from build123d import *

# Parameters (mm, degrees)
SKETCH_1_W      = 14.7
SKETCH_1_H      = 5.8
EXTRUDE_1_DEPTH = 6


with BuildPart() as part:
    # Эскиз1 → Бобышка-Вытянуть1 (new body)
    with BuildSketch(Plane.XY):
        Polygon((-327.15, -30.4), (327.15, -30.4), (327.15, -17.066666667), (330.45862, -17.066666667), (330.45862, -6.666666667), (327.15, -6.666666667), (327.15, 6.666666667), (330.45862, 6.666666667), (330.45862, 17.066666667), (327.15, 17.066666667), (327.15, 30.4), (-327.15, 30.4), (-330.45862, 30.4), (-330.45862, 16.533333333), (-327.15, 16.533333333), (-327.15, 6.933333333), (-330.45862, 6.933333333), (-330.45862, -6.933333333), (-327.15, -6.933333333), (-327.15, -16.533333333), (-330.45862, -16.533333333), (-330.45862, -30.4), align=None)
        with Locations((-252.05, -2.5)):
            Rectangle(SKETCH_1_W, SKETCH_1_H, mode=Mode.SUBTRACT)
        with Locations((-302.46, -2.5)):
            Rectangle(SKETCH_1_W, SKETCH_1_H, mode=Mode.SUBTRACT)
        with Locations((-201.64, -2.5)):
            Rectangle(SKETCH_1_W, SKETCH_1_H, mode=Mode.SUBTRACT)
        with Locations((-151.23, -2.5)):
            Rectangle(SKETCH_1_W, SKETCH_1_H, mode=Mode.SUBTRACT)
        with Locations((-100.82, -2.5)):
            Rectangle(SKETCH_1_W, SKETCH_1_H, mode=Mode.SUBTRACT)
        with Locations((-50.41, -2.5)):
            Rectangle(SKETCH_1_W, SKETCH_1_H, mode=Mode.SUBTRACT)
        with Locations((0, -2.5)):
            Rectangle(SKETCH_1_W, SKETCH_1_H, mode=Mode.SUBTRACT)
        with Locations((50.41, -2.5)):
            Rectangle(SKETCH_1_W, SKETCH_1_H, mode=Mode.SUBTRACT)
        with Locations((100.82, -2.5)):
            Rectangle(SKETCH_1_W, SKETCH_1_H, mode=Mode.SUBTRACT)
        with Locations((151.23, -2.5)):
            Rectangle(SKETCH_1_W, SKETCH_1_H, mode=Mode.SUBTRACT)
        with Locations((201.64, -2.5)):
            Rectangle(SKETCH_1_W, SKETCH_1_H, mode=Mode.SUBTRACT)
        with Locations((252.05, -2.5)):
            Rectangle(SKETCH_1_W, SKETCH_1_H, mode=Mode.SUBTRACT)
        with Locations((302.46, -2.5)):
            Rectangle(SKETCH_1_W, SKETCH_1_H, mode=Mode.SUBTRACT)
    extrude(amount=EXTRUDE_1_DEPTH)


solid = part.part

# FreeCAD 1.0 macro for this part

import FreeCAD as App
import Part
import Sketcher

V = App.Vector

doc = App.newDocument("Part")
body = doc.addObject("PartDesign::Body", "Body")

sketch1 = body.newObject("Sketcher::SketchObject", "Sketch")
sketch1.AttachmentSupport = (doc.getObject("XY_Plane"), [""])
sketch1.MapMode = "FlatFace"
sketch1.addGeometry([
    Part.LineSegment(V(327.1, -30.4, 0), V(327.1, -17.1, 0)),
    Part.LineSegment(V(327.1, -17.1, 0), V(330.5, -17.1, 0)),
    Part.LineSegment(V(330.5, -17.1, 0), V(330.5, -6.7, 0)),
    Part.LineSegment(V(330.5, -6.7, 0), V(327.1, -6.7, 0)),
    Part.LineSegment(V(327.1, -6.7, 0), V(327.1, 6.7, 0)),
    Part.LineSegment(V(327.1, 6.7, 0), V(330.5, 6.7, 0)),
    Part.LineSegment(V(330.5, 6.7, 0), V(330.5, 17.1, 0)),
    Part.LineSegment(V(330.5, 17.1, 0), V(327.1, 17.1, 0)),
    Part.LineSegment(V(327.1, 17.1, 0), V(327.1, 30.4, 0)),
    Part.LineSegment(V(327.1, 30.4, 0), V(-330.5, 30.4, 0)),
    Part.LineSegment(V(-330.5, 30.4, 0), V(-330.5, 16.5, 0)),
    Part.LineSegment(V(-330.5, 16.5, 0), V(-327.1, 16.5, 0)),
    Part.LineSegment(V(-327.1, 16.5, 0), V(-327.1, 6.9, 0)),
    Part.LineSegment(V(-327.1, 6.9, 0), V(-330.5, 6.9, 0)),
    Part.LineSegment(V(-330.5, 6.9, 0), V(-330.5, -6.9, 0)),
    Part.LineSegment(V(-330.5, -6.9, 0), V(-327.1, -6.9, 0)),
    Part.LineSegment(V(-327.1, -6.9, 0), V(-327.1, -16.5, 0)),
    Part.LineSegment(V(-327.1, -16.5, 0), V(-330.5, -16.5, 0)),
    Part.LineSegment(V(-330.5, -16.5, 0), V(-330.5, -30.4, 0)),
    Part.LineSegment(V(-330.5, -30.4, 0), V(327.1, -30.4, 0)),
    Part.LineSegment(V(-295.1, -5.4, 0), V(-309.8, -5.4, 0)),
    Part.LineSegment(V(-309.8, -5.4, 0), V(-309.8, 0.4, 0)),
    Part.LineSegment(V(-309.8, 0.4, 0), V(-295.1, 0.4, 0)),
    Part.LineSegment(V(-295.1, 0.4, 0), V(-295.1, -5.4, 0)),
    Part.LineSegment(V(-244.7, -5.4, 0), V(-259.4, -5.4, 0)),
    Part.LineSegment(V(-259.4, -5.4, 0), V(-259.4, 0.4, 0)),
    Part.LineSegment(V(-259.4, 0.4, 0), V(-244.7, 0.4, 0)),
    Part.LineSegment(V(-244.7, 0.4, 0), V(-244.7, -5.4, 0)),
    Part.LineSegment(V(-194.3, -5.4, 0), V(-209, -5.4, 0)),
    Part.LineSegment(V(-209, -5.4, 0), V(-209, 0.4, 0)),
    Part.LineSegment(V(-209, 0.4, 0), V(-194.3, 0.4, 0)),
    Part.LineSegment(V(-194.3, 0.4, 0), V(-194.3, -5.4, 0)),
    Part.LineSegment(V(-143.9, -5.4, 0), V(-158.6, -5.4, 0)),
    Part.LineSegment(V(-158.6, -5.4, 0), V(-158.6, 0.4, 0)),
    Part.LineSegment(V(-158.6, 0.4, 0), V(-143.9, 0.4, 0)),
    Part.LineSegment(V(-143.9, 0.4, 0), V(-143.9, -5.4, 0)),
    Part.LineSegment(V(-93.5, -5.4, 0), V(-108.2, -5.4, 0)),
    Part.LineSegment(V(-108.2, -5.4, 0), V(-108.2, 0.4, 0)),
    Part.LineSegment(V(-108.2, 0.4, 0), V(-93.5, 0.4, 0)),
    Part.LineSegment(V(-93.5, 0.4, 0), V(-93.5, -5.4, 0)),
    Part.LineSegment(V(-43.1, -5.4, 0), V(-57.8, -5.4, 0)),
    Part.LineSegment(V(-57.8, -5.4, 0), V(-57.8, 0.4, 0)),
    Part.LineSegment(V(-57.8, 0.4, 0), V(-43.1, 0.4, 0)),
    Part.LineSegment(V(-43.1, 0.4, 0), V(-43.1, -5.4, 0)),
    Part.LineSegment(V(7.3, -5.4, 0), V(-7.3, -5.4, 0)),
    Part.LineSegment(V(-7.3, -5.4, 0), V(-7.3, 0.4, 0)),
    Part.LineSegment(V(-7.3, 0.4, 0), V(7.3, 0.4, 0)),
    Part.LineSegment(V(7.3, 0.4, 0), V(7.3, -5.4, 0)),
    Part.LineSegment(V(57.8, -5.4, 0), V(43.1, -5.4, 0)),
    Part.LineSegment(V(43.1, -5.4, 0), V(43.1, 0.4, 0)),
    Part.LineSegment(V(43.1, 0.4, 0), V(57.8, 0.4, 0)),
    Part.LineSegment(V(57.8, 0.4, 0), V(57.8, -5.4, 0)),
    Part.LineSegment(V(108.2, -5.4, 0), V(93.5, -5.4, 0)),
    Part.LineSegment(V(93.5, -5.4, 0), V(93.5, 0.4, 0)),
    Part.LineSegment(V(93.5, 0.4, 0), V(108.2, 0.4, 0)),
    Part.LineSegment(V(108.2, 0.4, 0), V(108.2, -5.4, 0)),
    Part.LineSegment(V(158.6, -5.4, 0), V(143.9, -5.4, 0)),
    Part.LineSegment(V(143.9, -5.4, 0), V(143.9, 0.4, 0)),
    Part.LineSegment(V(143.9, 0.4, 0), V(158.6, 0.4, 0)),
    Part.LineSegment(V(158.6, 0.4, 0), V(158.6, -5.4, 0)),
    Part.LineSegment(V(209, -5.4, 0), V(194.3, -5.4, 0)),
    Part.LineSegment(V(194.3, -5.4, 0), V(194.3, 0.4, 0)),
    Part.LineSegment(V(194.3, 0.4, 0), V(209, 0.4, 0)),
    Part.LineSegment(V(209, 0.4, 0), V(209, -5.4, 0)),
    Part.LineSegment(V(259.4, -5.4, 0), V(244.7, -5.4, 0)),
    Part.LineSegment(V(244.7, -5.4, 0), V(244.7, 0.4, 0)),
    Part.LineSegment(V(244.7, 0.4, 0), V(259.4, 0.4, 0)),
    Part.LineSegment(V(259.4, 0.4, 0), V(259.4, -5.4, 0)),
    Part.LineSegment(V(309.8, -5.4, 0), V(295.1, -5.4, 0)),
    Part.LineSegment(V(295.1, -5.4, 0), V(295.1, 0.4, 0)),
    Part.LineSegment(V(295.1, 0.4, 0), V(309.8, 0.4, 0)),
    Part.LineSegment(V(309.8, 0.4, 0), V(309.8, -5.4, 0)),
], False)
sketch1.addConstraint([
    Sketcher.Constraint("Coincident", 0, 2, 1, 1),
    Sketcher.Constraint("Coincident", 1, 2, 2, 1),
    Sketcher.Constraint("Coincident", 2, 2, 3, 1),
    Sketcher.Constraint("Coincident", 3, 2, 4, 1),
    Sketcher.Constraint("Coincident", 4, 2, 5, 1),
    Sketcher.Constraint("Coincident", 5, 2, 6, 1),
    Sketcher.Constraint("Coincident", 6, 2, 7, 1),
    Sketcher.Constraint("Coincident", 7, 2, 8, 1),
    Sketcher.Constraint("Coincident", 8, 2, 9, 1),
    Sketcher.Constraint("Coincident", 9, 2, 10, 1),
    Sketcher.Constraint("Coincident", 10, 2, 11, 1),
    Sketcher.Constraint("Coincident", 11, 2, 12, 1),
    Sketcher.Constraint("Coincident", 12, 2, 13, 1),
    Sketcher.Constraint("Coincident", 13, 2, 14, 1),
    Sketcher.Constraint("Coincident", 14, 2, 15, 1),
    Sketcher.Constraint("Coincident", 15, 2, 16, 1),
    Sketcher.Constraint("Coincident", 16, 2, 17, 1),
    Sketcher.Constraint("Coincident", 17, 2, 18, 1),
    Sketcher.Constraint("Coincident", 18, 2, 19, 1),
    Sketcher.Constraint("Coincident", 19, 2, 0, 1),
    Sketcher.Constraint("Coincident", 20, 2, 21, 1),
    Sketcher.Constraint("Coincident", 21, 2, 22, 1),
    Sketcher.Constraint("Coincident", 22, 2, 23, 1),
    Sketcher.Constraint("Coincident", 23, 2, 20, 1),
    Sketcher.Constraint("Coincident", 24, 2, 25, 1),
    Sketcher.Constraint("Coincident", 25, 2, 26, 1),
    Sketcher.Constraint("Coincident", 26, 2, 27, 1),
    Sketcher.Constraint("Coincident", 27, 2, 24, 1),
    Sketcher.Constraint("Coincident", 28, 2, 29, 1),
    Sketcher.Constraint("Coincident", 29, 2, 30, 1),
    Sketcher.Constraint("Coincident", 30, 2, 31, 1),
    Sketcher.Constraint("Coincident", 31, 2, 28, 1),
    Sketcher.Constraint("Coincident", 32, 2, 33, 1),
    Sketcher.Constraint("Coincident", 33, 2, 34, 1),
    Sketcher.Constraint("Coincident", 34, 2, 35, 1),
    Sketcher.Constraint("Coincident", 35, 2, 32, 1),
    Sketcher.Constraint("Coincident", 36, 2, 37, 1),
    Sketcher.Constraint("Coincident", 37, 2, 38, 1),
    Sketcher.Constraint("Coincident", 38, 2, 39, 1),
    Sketcher.Constraint("Coincident", 39, 2, 36, 1),
    Sketcher.Constraint("Coincident", 40, 2, 41, 1),
    Sketcher.Constraint("Coincident", 41, 2, 42, 1),
    Sketcher.Constraint("Coincident", 42, 2, 43, 1),
    Sketcher.Constraint("Coincident", 43, 2, 40, 1),
    Sketcher.Constraint("Coincident", 44, 2, 45, 1),
    Sketcher.Constraint("Coincident", 45, 2, 46, 1),
    Sketcher.Constraint("Coincident", 46, 2, 47, 1),
    Sketcher.Constraint("Coincident", 47, 2, 44, 1),
    Sketcher.Constraint("Coincident", 48, 2, 49, 1),
    Sketcher.Constraint("Coincident", 49, 2, 50, 1),
    Sketcher.Constraint("Coincident", 50, 2, 51, 1),
    Sketcher.Constraint("Coincident", 51, 2, 48, 1),
    Sketcher.Constraint("Coincident", 52, 2, 53, 1),
    Sketcher.Constraint("Coincident", 53, 2, 54, 1),
    Sketcher.Constraint("Coincident", 54, 2, 55, 1),
    Sketcher.Constraint("Coincident", 55, 2, 52, 1),
    Sketcher.Constraint("Coincident", 56, 2, 57, 1),
    Sketcher.Constraint("Coincident", 57, 2, 58, 1),
    Sketcher.Constraint("Coincident", 58, 2, 59, 1),
    Sketcher.Constraint("Coincident", 59, 2, 56, 1),
    Sketcher.Constraint("Coincident", 60, 2, 61, 1),
    Sketcher.Constraint("Coincident", 61, 2, 62, 1),
    Sketcher.Constraint("Coincident", 62, 2, 63, 1),
    Sketcher.Constraint("Coincident", 63, 2, 60, 1),
    Sketcher.Constraint("Coincident", 64, 2, 65, 1),
    Sketcher.Constraint("Coincident", 65, 2, 66, 1),
    Sketcher.Constraint("Coincident", 66, 2, 67, 1),
    Sketcher.Constraint("Coincident", 67, 2, 64, 1),
    Sketcher.Constraint("Coincident", 68, 2, 69, 1),
    Sketcher.Constraint("Coincident", 69, 2, 70, 1),
    Sketcher.Constraint("Coincident", 70, 2, 71, 1),
    Sketcher.Constraint("Coincident", 71, 2, 68, 1),
    Sketcher.Constraint("Vertical", 0),
    Sketcher.Constraint("Horizontal", 1),
    Sketcher.Constraint("Vertical", 2),
    Sketcher.Constraint("Horizontal", 3),
    Sketcher.Constraint("Vertical", 4),
    Sketcher.Constraint("Horizontal", 5),
    Sketcher.Constraint("Vertical", 6),
    Sketcher.Constraint("Horizontal", 7),
    Sketcher.Constraint("Vertical", 8),
    Sketcher.Constraint("Horizontal", 9),
    Sketcher.Constraint("Vertical", 10),
    Sketcher.Constraint("Horizontal", 11),
    Sketcher.Constraint("Vertical", 12),
    Sketcher.Constraint("Horizontal", 13),
    Sketcher.Constraint("Vertical", 14),
    Sketcher.Constraint("Horizontal", 15),
    Sketcher.Constraint("Vertical", 16),
    Sketcher.Constraint("Horizontal", 17),
    Sketcher.Constraint("Vertical", 18),
    Sketcher.Constraint("Horizontal", 19),
    Sketcher.Constraint("Horizontal", 20),
    Sketcher.Constraint("Vertical", 21),
    Sketcher.Constraint("Horizontal", 22),
    Sketcher.Constraint("Vertical", 23),
    Sketcher.Constraint("Horizontal", 24),
    Sketcher.Constraint("Vertical", 25),
    Sketcher.Constraint("Horizontal", 26),
    Sketcher.Constraint("Vertical", 27),
    Sketcher.Constraint("Horizontal", 28),
    Sketcher.Constraint("Vertical", 29),
    Sketcher.Constraint("Horizontal", 30),
    Sketcher.Constraint("Vertical", 31),
    Sketcher.Constraint("Horizontal", 32),
    Sketcher.Constraint("Vertical", 33),
    Sketcher.Constraint("Horizontal", 34),
    Sketcher.Constraint("Vertical", 35),
    Sketcher.Constraint("Horizontal", 36),
    Sketcher.Constraint("Vertical", 37),
    Sketcher.Constraint("Horizontal", 38),
    Sketcher.Constraint("Vertical", 39),
    Sketcher.Constraint("Horizontal", 40),
    Sketcher.Constraint("Vertical", 41),
    Sketcher.Constraint("Horizontal", 42),
    Sketcher.Constraint("Vertical", 43),
    Sketcher.Constraint("Horizontal", 44),
    Sketcher.Constraint("Vertical", 45),
    Sketcher.Constraint("Horizontal", 46),
    Sketcher.Constraint("Vertical", 47),
    Sketcher.Constraint("Horizontal", 48),
    Sketcher.Constraint("Vertical", 49),
    Sketcher.Constraint("Horizontal", 50),
    Sketcher.Constraint("Vertical", 51),
    Sketcher.Constraint("Horizontal", 52),
    Sketcher.Constraint("Vertical", 53),
    Sketcher.Constraint("Horizontal", 54),
    Sketcher.Constraint("Vertical", 55),
    Sketcher.Constraint("Horizontal", 56),
    Sketcher.Constraint("Vertical", 57),
    Sketcher.Constraint("Horizontal", 58),
    Sketcher.Constraint("Vertical", 59),
    Sketcher.Constraint("Horizontal", 60),
    Sketcher.Constraint("Vertical", 61),
    Sketcher.Constraint("Horizontal", 62),
    Sketcher.Constraint("Vertical", 63),
    Sketcher.Constraint("Horizontal", 64),
    Sketcher.Constraint("Vertical", 65),
    Sketcher.Constraint("Horizontal", 66),
    Sketcher.Constraint("Vertical", 67),
    Sketcher.Constraint("Horizontal", 68),
    Sketcher.Constraint("Vertical", 69),
    Sketcher.Constraint("Horizontal", 70),
    Sketcher.Constraint("Vertical", 71),
    Sketcher.Constraint("Symmetric", 43, 2, 48, 2, -2),
    Sketcher.Constraint("Symmetric", 41, 2, 50, 2, -2),
    Sketcher.Constraint("Symmetric", 39, 2, 52, 2, -2),
    Sketcher.Constraint("Symmetric", 37, 2, 54, 2, -2),
    Sketcher.Constraint("Symmetric", 35, 2, 56, 2, -2),
    Sketcher.Constraint("Symmetric", 33, 2, 58, 2, -2),
    Sketcher.Constraint("Symmetric", 31, 2, 60, 2, -2),
    Sketcher.Constraint("Symmetric", 29, 2, 62, 2, -2),
    Sketcher.Constraint("Symmetric", 27, 2, 64, 2, -2),
    Sketcher.Constraint("Symmetric", 25, 2, 66, 2, -2),
    Sketcher.Constraint("Symmetric", 23, 2, 68, 2, -2),
    Sketcher.Constraint("Symmetric", 21, 2, 70, 2, -2),
    Sketcher.Constraint("Symmetric", 2, 2, 5, 2, -1),
    Sketcher.Constraint("Symmetric", 0, 2, 7, 2, -1),
    Sketcher.Constraint("Symmetric", 12, 2, 15, 2, -1),
    Sketcher.Constraint("Symmetric", 10, 2, 17, 2, -1),
    Sketcher.Constraint("Horizontal", 23, 2, 24, 2),
    Sketcher.Constraint("Horizontal", 22, 2, 25, 2),
    Sketcher.Constraint("Horizontal", 27, 2, 28, 2),
    Sketcher.Constraint("Horizontal", 26, 2, 29, 2),
    Sketcher.Constraint("Horizontal", 31, 2, 32, 2),
    Sketcher.Constraint("Horizontal", 30, 2, 33, 2),
    Sketcher.Constraint("Horizontal", 35, 2, 36, 2),
    Sketcher.Constraint("Horizontal", 34, 2, 37, 2),
    Sketcher.Constraint("Horizontal", 39, 2, 40, 2),
    Sketcher.Constraint("Horizontal", 38, 2, 41, 2),
    Sketcher.Constraint("Horizontal", 43, 2, 44, 2),
    Sketcher.Constraint("Horizontal", 42, 2, 45, 2),
    Sketcher.Constraint("Vertical", 0, 2, 3, 2),
    Sketcher.Constraint("Vertical", 10, 2, 13, 2),
    Sketcher.Constraint("Equal", 7, 11),
    Sketcher.Constraint("Equal", 22, 24),
    Sketcher.Constraint("Equal", 26, 28),
    Sketcher.Constraint("Equal", 30, 32),
    Sketcher.Constraint("Equal", 34, 36),
    Sketcher.Constraint("Equal", 38, 40),
    Sketcher.Constraint("Equal", 42, 44),
    Sketcher.Constraint("Equal", 0, 4),
    Sketcher.Constraint("Equal", 4, 8),
    Sketcher.Constraint("Equal", 10, 14),
    Sketcher.Constraint("DistanceX", 20, 2, 20, 1, 14.7),
    Sketcher.Constraint("DistanceY", 2, 1, 2, 2, 10.4),
    Sketcher.Constraint("DistanceY", 12, 2, 12, 1, 9.6),
    Sketcher.Constraint("DistanceY", 21, 1, 21, 2, 5.8),
    Sketcher.Constraint("DistanceY", -1, 1, 8, 2, 30.4),
    Sketcher.Constraint("DistanceY", 20, 2, -1, 1, 5.4),
    Sketcher.Constraint("DistanceX", 24, 2, -1, 1, 259.4),
    Sketcher.Constraint("DistanceX", -1, 1, 0, 2, 327.15),
    Sketcher.Constraint("DistanceX", 11, 2, -1, 1, 327.15),
    Sketcher.Constraint("DistanceX", 20, 2, -1, 1, 309.81),
    Sketcher.Constraint("DistanceX", 28, 2, -1, 1, 208.99),
    Sketcher.Constraint("DistanceX", 32, 2, -1, 1, 158.58),
    Sketcher.Constraint("DistanceX", 36, 2, -1, 1, 108.17),
    Sketcher.Constraint("DistanceX", 40, 2, -1, 1, 57.76),
    Sketcher.Constraint("DistanceX", 44, 2, -1, 1, 7.35),
    Sketcher.Constraint("DistanceX", 1, 1, 1, 2, 3.30862),
])
pad1 = body.newObject("PartDesign::Pad", "Pad")
pad1.Profile = sketch1
pad1.Length = 6

doc.recompute()
